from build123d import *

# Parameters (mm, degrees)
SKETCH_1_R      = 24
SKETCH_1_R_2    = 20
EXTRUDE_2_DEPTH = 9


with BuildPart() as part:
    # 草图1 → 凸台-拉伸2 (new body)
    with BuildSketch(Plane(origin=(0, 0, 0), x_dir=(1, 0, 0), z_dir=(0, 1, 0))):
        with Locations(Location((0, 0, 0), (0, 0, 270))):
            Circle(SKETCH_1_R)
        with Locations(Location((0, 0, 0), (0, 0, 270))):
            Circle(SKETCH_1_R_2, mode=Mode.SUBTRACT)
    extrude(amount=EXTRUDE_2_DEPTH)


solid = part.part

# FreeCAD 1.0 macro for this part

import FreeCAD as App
import Part
import Sketcher
Q = App.Units.Quantity

doc = App.newDocument("Part")
body = doc.addObject("PartDesign::Body", "Body")

# Sketch on XZ plane
sketch1 = doc.addObject("Sketcher::SketchObject", "Sketch")
body.addObject(sketch1)
sketch1.AttachmentSupport = (doc.XZ_Plane, [""])
sketch1.MapMode = "FlatFace"
sketch1.addGeometry(Part.Circle(App.Vector(0, 0, 0), App.Vector(0, 0, 1), 24), False)
sketch1.addGeometry(Part.Circle(App.Vector(0, 0, 0), App.Vector(0, 0, 1), 20), False)
sketch1.addConstraint(Sketcher.Constraint("Coincident", 0, 3, -1, 1))
sketch1.addConstraint(Sketcher.Constraint("Coincident", 1, 3, -1, 1))
sketch1.addConstraint(Sketcher.Constraint("Diameter", 0, Q("48 mm")))
sketch1.addConstraint(Sketcher.Constraint("Diameter", 1, Q("40 mm")))
pad1 = doc.addObject("PartDesign::Pad", "Pad")
body.addObject(pad1)
pad1.Profile = sketch1
pad1.Length = 9
pad1.Reversed = True

doc.recompute()
